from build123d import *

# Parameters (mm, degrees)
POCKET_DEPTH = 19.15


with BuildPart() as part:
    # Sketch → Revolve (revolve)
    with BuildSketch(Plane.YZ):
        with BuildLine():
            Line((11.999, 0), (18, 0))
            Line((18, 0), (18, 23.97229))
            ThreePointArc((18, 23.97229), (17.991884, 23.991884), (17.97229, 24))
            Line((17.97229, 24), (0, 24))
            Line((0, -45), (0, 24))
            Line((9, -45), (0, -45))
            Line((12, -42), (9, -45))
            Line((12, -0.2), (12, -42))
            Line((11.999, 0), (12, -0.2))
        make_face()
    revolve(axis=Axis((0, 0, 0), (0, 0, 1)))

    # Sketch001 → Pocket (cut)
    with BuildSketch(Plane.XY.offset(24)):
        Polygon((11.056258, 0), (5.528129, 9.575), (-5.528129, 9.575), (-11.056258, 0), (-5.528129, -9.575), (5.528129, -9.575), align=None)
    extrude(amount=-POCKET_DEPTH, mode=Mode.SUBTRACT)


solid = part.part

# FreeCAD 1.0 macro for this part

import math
import FreeCAD as App
import Part
import Sketcher
Q = App.Units.Quantity


def add_polygon(sketch, points):
    """Adds a closed chain of lines whose ends are joined by coincident constraints."""
    first, n = sketch.GeometryCount, len(points)
    for a, b in zip(points, points[1:] + points[:1]):
        sketch.addGeometry(Part.LineSegment(App.Vector(*a, 0), App.Vector(*b, 0)), False)
    for i in range(n):
        sketch.addConstraint(Sketcher.Constraint("Coincident", first + i, 2, first + (i + 1) % n, 1))

doc = App.newDocument("Part")
params = doc.addObject("Spreadsheet::Sheet", "Params")
for row, (alias, value) in enumerate([
    ("sketch1_width", "9 mm"),
    ("sketch1_height", "69 mm"),
    ("sketch1_height2", "41.8 mm"),
    ("revolution_angle", "360 deg"),
    ("pocket1_length", "19.15 mm"),
], start=1):
    params.set(f"A{row}", alias)
    params.set(f"B{row}", "=" + value)
    params.setAlias(f"B{row}", alias)

body = doc.addObject("PartDesign::Body", "Body")

sketch1 = doc.addObject("Sketcher::SketchObject", "Sketch")
body.addObject(sketch1)
sketch1.AttachmentSupport = (doc.YZ_Plane, [""])
sketch1.MapMode = "FlatFace"
sketch1.addGeometry([
    Part.LineSegment(App.Vector(11.999, 0, 0), App.Vector(18, 0, 0)),
    Part.LineSegment(App.Vector(18, 0, 0), App.Vector(18, 23.972, 0)),
    Part.ArcOfCircle(Part.Circle(App.Vector(17.972, 23.972, 0), App.Vector(0, 0, 1), 0.028), math.radians(0), math.radians(90)),
    Part.LineSegment(App.Vector(17.972, 24, 0), App.Vector(0, 24, 0)),
    Part.LineSegment(App.Vector(0, 24, 0), App.Vector(0, -45, 0)),
    Part.LineSegment(App.Vector(0, -45, 0), App.Vector(9, -45, 0)),
    Part.LineSegment(App.Vector(9, -45, 0), App.Vector(12, -42, 0)),
    Part.LineSegment(App.Vector(12, -42, 0), App.Vector(12, -0.2, 0)),
    Part.LineSegment(App.Vector(12, -0.2, 0), App.Vector(11.999, 0, 0)),
], False)
sketch1.addConstraint([
    Sketcher.Constraint("Coincident", 0, 2, 1, 1),
    Sketcher.Constraint("Coincident", 1, 2, 2, 1),
    Sketcher.Constraint("Coincident", 2, 2, 3, 1),
    Sketcher.Constraint("Coincident", 3, 2, 4, 1),
    Sketcher.Constraint("Coincident", 4, 2, 5, 1),
    Sketcher.Constraint("Coincident", 5, 2, 6, 1),
    Sketcher.Constraint("Coincident", 6, 2, 7, 1),
    Sketcher.Constraint("Coincident", 7, 2, 8, 1),
    Sketcher.Constraint("Coincident", 8, 2, 0, 1),
    Sketcher.Constraint("Horizontal", 0),
    Sketcher.Constraint("Vertical", 1),
    Sketcher.Constraint("Horizontal", 3),
    Sketcher.Constraint("Vertical", 4),
    Sketcher.Constraint("Horizontal", 5),
    Sketcher.Constraint("Vertical", 7),
    Sketcher.Constraint("PointOnObject", 0, 2, -1),
    Sketcher.Constraint("PointOnObject", 3, 2, -2),
    Sketcher.Constraint("Horizontal", 2, 3, 1, 2),
    Sketcher.Constraint("DistanceX", 5, 1, 5, 2, Q("9 mm")),
    Sketcher.Constraint("DistanceY", 4, 2, 4, 1, Q("69 mm")),
    Sketcher.Constraint("Angle", 6, Q("45 deg")),
    Sketcher.Constraint("DistanceY", 7, 1, 7, 2, Q("41.8 mm")),
    Sketcher.Constraint("DistanceX", -1, 1, 0, 2, Q("18 mm")),
    Sketcher.Constraint("DistanceY", -1, 1, 2, 2, Q("24 mm")),
    Sketcher.Constraint("DistanceX", -1, 1, 6, 2, Q("12 mm")),
    Sketcher.Constraint("DistanceX", 0, 1, 0, 2, Q("6.001 mm")),
    Sketcher.Constraint("Radius", 2, Q("0.02771 mm")),
    Sketcher.Constraint("DistanceX", 3, 2, 3, 1, Q("17.97229 mm")),
])
sketch1.setExpression("Constraints[18]", "Params.sketch1_width")
sketch1.setExpression("Constraints[19]", "Params.sketch1_height")
sketch1.setExpression("Constraints[21]", "Params.sketch1_height2")
revolution = doc.addObject("PartDesign::Revolution", "Revolution")
body.addObject(revolution)
revolution.Profile = sketch1
revolution.ReferenceAxis = (sketch1, ["V_Axis"])
revolution.setExpression("Angle", "Params.revolution_angle")

sketch2 = doc.addObject("Sketcher::SketchObject", "Sketch001")
body.addObject(sketch2)
sketch2.AttachmentSupport = (doc.XY_Plane, [""])
sketch2.MapMode = "FlatFace"
sketch2.AttachmentOffset = App.Placement(App.Vector(0, 0, 24), App.Rotation())
add_polygon(sketch2, [(11, 0), (6, 10), (-6, 10), (-11, 0), (-6, -10), (6, -10)])
sketch2.addConstraint([
    Sketcher.Constraint("Horizontal", 1),
    Sketcher.Constraint("Horizontal", 4),
    Sketcher.Constraint("Symmetric", 0, 2, 3, 2, -1, 1),
    Sketcher.Constraint("Symmetric", 2, 2, 5, 2, -1, 1),
    Sketcher.Constraint("PointOnObject", 2, 2, -1),
    Sketcher.Constraint("Parallel", 2, 5),
    Sketcher.Constraint("Vertical", 1, 2, 3, 2),
    Sketcher.Constraint("Angle", 0, Q("120.000001 deg")),
    Sketcher.Constraint("DistanceY", 3, 2, 1, 2, Q("19.15 mm")),
    Sketcher.Constraint("DistanceX", 1, 2, 1, 1, Q("11.056258 mm")),
])
pocket1 = doc.addObject("PartDesign::Pocket", "Pocket")
body.addObject(pocket1)
pocket1.Profile = sketch2
pocket1.setExpression("Length", "Params.pocket1_length")

doc.recompute()
